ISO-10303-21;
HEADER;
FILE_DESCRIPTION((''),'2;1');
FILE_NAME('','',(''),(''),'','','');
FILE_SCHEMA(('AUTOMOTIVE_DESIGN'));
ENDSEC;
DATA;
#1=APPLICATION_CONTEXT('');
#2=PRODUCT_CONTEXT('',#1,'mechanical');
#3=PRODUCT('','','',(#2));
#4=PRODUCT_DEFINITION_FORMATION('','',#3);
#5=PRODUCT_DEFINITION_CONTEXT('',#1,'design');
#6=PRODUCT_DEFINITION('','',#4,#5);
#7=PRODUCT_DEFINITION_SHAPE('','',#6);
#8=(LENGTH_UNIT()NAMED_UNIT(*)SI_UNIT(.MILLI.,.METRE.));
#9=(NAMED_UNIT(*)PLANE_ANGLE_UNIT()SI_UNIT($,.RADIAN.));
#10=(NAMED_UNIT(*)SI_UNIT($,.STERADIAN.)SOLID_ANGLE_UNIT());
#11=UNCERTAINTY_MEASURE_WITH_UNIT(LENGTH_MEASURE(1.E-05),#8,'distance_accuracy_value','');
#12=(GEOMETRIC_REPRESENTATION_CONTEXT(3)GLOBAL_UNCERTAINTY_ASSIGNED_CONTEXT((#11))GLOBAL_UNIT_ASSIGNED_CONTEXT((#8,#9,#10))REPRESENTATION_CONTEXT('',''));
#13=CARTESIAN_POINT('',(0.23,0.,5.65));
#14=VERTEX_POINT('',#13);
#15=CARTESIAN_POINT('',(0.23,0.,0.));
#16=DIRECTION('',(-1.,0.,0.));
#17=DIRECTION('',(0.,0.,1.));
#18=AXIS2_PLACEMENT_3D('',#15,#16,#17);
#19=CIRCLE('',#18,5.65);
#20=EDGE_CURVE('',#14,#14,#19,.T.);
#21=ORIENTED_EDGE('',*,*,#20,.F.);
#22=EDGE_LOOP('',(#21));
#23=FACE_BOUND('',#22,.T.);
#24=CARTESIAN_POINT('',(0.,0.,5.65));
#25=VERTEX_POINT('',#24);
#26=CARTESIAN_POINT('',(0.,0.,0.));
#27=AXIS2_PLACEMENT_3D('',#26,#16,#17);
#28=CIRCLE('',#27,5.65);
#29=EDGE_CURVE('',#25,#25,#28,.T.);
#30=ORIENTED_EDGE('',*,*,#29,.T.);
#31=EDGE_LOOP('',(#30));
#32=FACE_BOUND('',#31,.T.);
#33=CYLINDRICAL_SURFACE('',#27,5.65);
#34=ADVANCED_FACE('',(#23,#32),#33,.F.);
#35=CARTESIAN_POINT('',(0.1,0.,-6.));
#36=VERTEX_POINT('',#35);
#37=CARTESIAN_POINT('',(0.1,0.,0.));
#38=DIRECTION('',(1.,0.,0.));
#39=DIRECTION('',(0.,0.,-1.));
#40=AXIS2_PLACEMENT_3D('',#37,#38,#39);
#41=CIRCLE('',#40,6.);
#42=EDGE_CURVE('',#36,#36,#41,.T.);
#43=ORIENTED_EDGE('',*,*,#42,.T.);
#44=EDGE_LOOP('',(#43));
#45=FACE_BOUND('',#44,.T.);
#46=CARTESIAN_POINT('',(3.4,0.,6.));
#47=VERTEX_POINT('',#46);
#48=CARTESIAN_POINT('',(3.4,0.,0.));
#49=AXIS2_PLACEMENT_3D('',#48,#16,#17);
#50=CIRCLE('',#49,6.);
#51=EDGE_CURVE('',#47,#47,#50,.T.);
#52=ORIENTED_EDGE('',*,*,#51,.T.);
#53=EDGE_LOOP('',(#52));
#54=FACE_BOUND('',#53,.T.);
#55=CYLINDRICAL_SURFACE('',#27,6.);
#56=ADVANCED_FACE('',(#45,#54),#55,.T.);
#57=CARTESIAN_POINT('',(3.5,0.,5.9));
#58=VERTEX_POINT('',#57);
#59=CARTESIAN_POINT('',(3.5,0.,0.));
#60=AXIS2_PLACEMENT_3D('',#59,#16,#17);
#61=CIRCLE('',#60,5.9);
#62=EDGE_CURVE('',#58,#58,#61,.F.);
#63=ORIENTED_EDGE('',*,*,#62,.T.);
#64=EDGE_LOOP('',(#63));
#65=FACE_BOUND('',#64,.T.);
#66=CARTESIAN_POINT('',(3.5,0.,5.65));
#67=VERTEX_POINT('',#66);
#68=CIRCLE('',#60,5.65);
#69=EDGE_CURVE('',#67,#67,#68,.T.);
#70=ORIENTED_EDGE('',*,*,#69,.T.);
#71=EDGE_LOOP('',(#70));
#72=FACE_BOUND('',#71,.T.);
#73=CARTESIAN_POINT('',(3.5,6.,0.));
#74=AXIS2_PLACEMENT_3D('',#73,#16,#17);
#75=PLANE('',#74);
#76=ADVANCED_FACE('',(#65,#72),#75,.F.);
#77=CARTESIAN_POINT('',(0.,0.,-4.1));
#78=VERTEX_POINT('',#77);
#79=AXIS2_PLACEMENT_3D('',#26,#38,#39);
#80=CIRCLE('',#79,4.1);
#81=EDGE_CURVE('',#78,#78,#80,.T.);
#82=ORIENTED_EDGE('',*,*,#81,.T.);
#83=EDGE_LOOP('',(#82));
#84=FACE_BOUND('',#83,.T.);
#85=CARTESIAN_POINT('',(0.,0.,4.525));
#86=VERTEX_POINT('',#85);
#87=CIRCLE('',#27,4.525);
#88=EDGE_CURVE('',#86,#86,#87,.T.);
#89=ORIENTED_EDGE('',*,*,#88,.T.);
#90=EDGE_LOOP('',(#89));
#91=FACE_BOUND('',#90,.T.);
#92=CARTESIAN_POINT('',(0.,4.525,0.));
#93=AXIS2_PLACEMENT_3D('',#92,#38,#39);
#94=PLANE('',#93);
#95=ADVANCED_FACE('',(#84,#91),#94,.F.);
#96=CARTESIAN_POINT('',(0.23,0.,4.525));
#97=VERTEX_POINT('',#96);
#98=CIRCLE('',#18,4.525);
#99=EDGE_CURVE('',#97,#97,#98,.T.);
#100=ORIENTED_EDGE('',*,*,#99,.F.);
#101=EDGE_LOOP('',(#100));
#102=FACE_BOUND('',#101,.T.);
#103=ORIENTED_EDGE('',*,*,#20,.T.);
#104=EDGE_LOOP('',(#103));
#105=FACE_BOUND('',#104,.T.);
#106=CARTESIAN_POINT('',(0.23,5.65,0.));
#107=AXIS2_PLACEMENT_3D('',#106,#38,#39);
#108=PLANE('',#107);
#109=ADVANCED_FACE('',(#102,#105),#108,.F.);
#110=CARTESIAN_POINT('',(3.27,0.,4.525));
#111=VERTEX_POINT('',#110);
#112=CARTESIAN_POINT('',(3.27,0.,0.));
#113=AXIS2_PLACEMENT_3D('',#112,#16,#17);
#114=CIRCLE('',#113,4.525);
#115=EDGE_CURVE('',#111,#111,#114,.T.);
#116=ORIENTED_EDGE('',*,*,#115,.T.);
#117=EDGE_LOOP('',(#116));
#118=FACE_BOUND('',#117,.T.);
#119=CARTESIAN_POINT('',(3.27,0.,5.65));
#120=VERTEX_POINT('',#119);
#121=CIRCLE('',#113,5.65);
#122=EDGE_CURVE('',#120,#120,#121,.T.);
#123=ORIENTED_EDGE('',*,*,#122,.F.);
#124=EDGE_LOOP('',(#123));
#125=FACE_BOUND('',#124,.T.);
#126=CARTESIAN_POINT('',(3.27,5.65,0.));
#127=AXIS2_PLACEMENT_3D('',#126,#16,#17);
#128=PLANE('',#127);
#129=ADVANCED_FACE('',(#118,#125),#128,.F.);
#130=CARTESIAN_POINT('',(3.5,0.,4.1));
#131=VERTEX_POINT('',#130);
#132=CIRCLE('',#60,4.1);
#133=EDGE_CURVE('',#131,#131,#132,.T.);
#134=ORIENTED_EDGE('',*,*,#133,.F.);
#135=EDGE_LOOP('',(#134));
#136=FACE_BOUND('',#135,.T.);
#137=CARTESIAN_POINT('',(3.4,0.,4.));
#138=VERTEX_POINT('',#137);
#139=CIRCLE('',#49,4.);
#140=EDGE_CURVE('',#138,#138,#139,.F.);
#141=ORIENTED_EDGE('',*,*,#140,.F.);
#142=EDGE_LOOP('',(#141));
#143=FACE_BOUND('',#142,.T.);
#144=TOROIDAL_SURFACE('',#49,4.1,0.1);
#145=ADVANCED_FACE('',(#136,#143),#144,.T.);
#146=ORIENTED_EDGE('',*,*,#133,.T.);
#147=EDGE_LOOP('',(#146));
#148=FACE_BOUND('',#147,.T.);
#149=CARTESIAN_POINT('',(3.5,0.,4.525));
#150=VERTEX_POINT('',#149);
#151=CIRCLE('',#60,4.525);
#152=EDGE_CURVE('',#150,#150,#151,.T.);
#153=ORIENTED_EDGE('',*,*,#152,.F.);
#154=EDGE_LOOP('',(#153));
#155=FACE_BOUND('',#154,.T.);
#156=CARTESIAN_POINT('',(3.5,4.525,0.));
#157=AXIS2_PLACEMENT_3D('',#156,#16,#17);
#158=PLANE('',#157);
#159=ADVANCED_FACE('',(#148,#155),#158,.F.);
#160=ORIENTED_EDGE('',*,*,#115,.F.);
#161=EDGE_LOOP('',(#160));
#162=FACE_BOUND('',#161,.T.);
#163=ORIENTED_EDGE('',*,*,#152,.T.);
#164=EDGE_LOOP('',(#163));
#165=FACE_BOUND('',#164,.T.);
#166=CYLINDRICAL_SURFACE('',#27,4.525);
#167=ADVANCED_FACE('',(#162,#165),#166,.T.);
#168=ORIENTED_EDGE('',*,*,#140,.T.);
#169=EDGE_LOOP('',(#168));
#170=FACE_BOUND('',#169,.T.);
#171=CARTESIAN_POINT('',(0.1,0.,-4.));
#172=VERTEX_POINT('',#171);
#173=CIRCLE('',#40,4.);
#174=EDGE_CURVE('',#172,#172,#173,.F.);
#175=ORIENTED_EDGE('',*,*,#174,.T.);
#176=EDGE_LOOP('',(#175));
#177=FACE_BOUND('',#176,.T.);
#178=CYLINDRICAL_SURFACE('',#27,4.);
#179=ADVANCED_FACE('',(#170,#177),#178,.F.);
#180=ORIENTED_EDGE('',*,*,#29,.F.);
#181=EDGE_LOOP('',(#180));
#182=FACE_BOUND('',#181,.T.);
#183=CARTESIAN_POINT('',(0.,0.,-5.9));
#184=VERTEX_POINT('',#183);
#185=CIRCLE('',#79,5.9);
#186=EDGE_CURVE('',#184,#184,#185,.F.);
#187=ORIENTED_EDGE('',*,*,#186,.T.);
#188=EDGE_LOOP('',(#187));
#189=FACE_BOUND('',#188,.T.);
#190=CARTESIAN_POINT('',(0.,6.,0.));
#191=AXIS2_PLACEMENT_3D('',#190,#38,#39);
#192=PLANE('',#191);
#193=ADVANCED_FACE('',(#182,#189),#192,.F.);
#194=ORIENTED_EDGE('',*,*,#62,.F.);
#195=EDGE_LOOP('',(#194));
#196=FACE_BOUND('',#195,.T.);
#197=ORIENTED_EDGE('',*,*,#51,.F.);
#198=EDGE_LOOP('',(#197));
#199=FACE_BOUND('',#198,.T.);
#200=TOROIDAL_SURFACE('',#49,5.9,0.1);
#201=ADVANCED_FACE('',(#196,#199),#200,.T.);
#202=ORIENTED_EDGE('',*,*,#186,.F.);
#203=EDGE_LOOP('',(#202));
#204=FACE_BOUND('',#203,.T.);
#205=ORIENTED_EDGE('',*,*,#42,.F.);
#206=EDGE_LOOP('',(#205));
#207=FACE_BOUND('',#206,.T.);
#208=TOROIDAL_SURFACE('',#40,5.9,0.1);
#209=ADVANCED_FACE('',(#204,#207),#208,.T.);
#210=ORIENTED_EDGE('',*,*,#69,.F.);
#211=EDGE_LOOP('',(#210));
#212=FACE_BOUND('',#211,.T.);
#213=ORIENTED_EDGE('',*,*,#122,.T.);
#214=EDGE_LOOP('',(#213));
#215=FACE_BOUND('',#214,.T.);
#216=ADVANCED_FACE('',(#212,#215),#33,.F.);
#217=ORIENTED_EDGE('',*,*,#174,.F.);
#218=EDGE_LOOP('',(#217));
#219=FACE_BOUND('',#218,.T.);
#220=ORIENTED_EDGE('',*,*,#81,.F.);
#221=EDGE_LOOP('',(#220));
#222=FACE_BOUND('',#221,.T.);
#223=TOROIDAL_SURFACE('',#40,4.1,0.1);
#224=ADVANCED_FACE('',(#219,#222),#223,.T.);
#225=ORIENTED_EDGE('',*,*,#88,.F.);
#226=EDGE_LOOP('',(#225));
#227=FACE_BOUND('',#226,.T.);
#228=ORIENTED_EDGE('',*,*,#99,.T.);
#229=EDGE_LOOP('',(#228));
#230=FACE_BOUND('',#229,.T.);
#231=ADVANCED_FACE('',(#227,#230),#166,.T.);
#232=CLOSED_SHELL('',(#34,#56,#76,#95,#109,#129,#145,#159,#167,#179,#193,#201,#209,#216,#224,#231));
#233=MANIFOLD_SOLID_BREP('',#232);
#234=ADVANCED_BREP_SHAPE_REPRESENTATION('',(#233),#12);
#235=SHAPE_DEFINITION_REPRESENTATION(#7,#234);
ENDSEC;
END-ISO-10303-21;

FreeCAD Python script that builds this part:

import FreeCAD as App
import Part
import Sketcher
from FreeCAD import Vector


def edges_at(feature, points):
    """Names of the edges that pass closest to the given points."""
    edges = feature.Shape.Edges
    near = lambda p: min(range(len(edges)), key=lambda i: edges[i].distToShape(Part.Vertex(*p))[0])
    return sorted({f"Edge{near(p) + 1}" for p in points})

doc = App.newDocument("Part")
body = doc.addObject("PartDesign::Body", "Body")

sketch1 = doc.addObject("Sketcher::SketchObject", "Sketch")
body.addObject(sketch1)
sketch1.AttachmentSupport = (doc.XY_Plane, [""])
sketch1.MapMode = "FlatFace"
sketch1.addGeometry([
    Part.LineSegment(Vector(0, 4, 0), Vector(3.5, 4, 0)),
    Part.LineSegment(Vector(3.5, 4, 0), Vector(3.5, 4.53, 0)),
    Part.LineSegment(Vector(3.5, 4.53, 0), Vector(3.27, 4.53, 0)),
    Part.LineSegment(Vector(3.27, 4.53, 0), Vector(3.27, 5.65, 0)),
    Part.LineSegment(Vector(3.27, 5.65, 0), Vector(3.5, 5.65, 0)),
    Part.LineSegment(Vector(3.5, 5.65, 0), Vector(3.5, 6, 0)),
    Part.LineSegment(Vector(3.5, 6, 0), Vector(0, 6, 0)),
    Part.LineSegment(Vector(0, 6, 0), Vector(0, 5.65, 0)),
    Part.LineSegment(Vector(0, 5.65, 0), Vector(0.23, 5.65, 0)),
    Part.LineSegment(Vector(0.23, 5.65, 0), Vector(0.23, 4.53, 0)),
    Part.LineSegment(Vector(0.23, 4.53, 0), Vector(0, 4.53, 0)),
    Part.LineSegment(Vector(0, 4.53, 0), Vector(0, 4, 0)),
], False)
sketch1.addConstraint([
    Sketcher.Constraint("Coincident", 0, 2, 1, 1),
    Sketcher.Constraint("Coincident", 1, 2, 2, 1),
    Sketcher.Constraint("Coincident", 2, 2, 3, 1),
    Sketcher.Constraint("Coincident", 3, 2, 4, 1),
    Sketcher.Constraint("Coincident", 4, 2, 5, 1),
    Sketcher.Constraint("Coincident", 5, 2, 6, 1),
    Sketcher.Constraint("Coincident", 6, 2, 7, 1),
    Sketcher.Constraint("Coincident", 7, 2, 8, 1),
    Sketcher.Constraint("Coincident", 8, 2, 9, 1),
    Sketcher.Constraint("Coincident", 9, 2, 10, 1),
    Sketcher.Constraint("Coincident", 10, 2, 11, 1),
    Sketcher.Constraint("Coincident", 11, 2, 0, 1),
    Sketcher.Constraint("Horizontal", 0),
    Sketcher.Constraint("Vertical", 1),
    Sketcher.Constraint("Horizontal", 2),
    Sketcher.Constraint("Vertical", 3),
    Sketcher.Constraint("Horizontal", 4),
    Sketcher.Constraint("Vertical", 5),
    Sketcher.Constraint("Horizontal", 6),
    Sketcher.Constraint("Vertical", 7),
    Sketcher.Constraint("Horizontal", 8),
    Sketcher.Constraint("Vertical", 9),
    Sketcher.Constraint("Horizontal", 10),
    Sketcher.Constraint("Vertical", 11),
    Sketcher.Constraint("PointOnObject", 6, 2, -2),
    Sketcher.Constraint("PointOnObject", 10, 2, -2),
    Sketcher.Constraint("Horizontal", 4, 2, 7, 2),
    Sketcher.Constraint("Horizontal", 2, 2, 9, 2),
    Sketcher.Constraint("Vertical", 1, 2, 4, 2),
    Sketcher.Constraint("Equal", 4, 8),
    Sketcher.Constraint("DistanceX", 0, 1, 0, 2, 3.5),
    Sketcher.Constraint("DistanceY", -1, 1, 0, 2, 4.0),
    Sketcher.Constraint("DistanceY", -1, 1, 5, 2, 6.0),
    Sketcher.Constraint("DistanceX", 2, 2, 2, 1, 0.23),
    Sketcher.Constraint("DistanceY", 5, 1, 5, 2, 0.35),
    Sketcher.Constraint("DistanceY", 1, 1, 1, 2, 0.525),
])
revolution = doc.addObject("PartDesign::Revolution", "Revolution")
body.addObject(revolution)
revolution.Profile = sketch1
revolution.ReferenceAxis = (sketch1, ["H_Axis"])
revolution.Angle = 360
doc.recompute()

fillet = doc.addObject("PartDesign::Fillet", "Fillet")
body.addObject(fillet)
fillet.Base = (revolution, edges_at(revolution, [(0, 0, -6), (3.5, 0, -6)]))
fillet.Radius = 0.1
doc.recompute()

fillet2 = doc.addObject("PartDesign::Fillet", "Fillet001")
body.addObject(fillet2)
fillet2.Base = (fillet, edges_at(fillet, [(3.5, 0, -4), (0, 0, -4)]))
fillet2.Radius = 0.1

doc.recompute()
